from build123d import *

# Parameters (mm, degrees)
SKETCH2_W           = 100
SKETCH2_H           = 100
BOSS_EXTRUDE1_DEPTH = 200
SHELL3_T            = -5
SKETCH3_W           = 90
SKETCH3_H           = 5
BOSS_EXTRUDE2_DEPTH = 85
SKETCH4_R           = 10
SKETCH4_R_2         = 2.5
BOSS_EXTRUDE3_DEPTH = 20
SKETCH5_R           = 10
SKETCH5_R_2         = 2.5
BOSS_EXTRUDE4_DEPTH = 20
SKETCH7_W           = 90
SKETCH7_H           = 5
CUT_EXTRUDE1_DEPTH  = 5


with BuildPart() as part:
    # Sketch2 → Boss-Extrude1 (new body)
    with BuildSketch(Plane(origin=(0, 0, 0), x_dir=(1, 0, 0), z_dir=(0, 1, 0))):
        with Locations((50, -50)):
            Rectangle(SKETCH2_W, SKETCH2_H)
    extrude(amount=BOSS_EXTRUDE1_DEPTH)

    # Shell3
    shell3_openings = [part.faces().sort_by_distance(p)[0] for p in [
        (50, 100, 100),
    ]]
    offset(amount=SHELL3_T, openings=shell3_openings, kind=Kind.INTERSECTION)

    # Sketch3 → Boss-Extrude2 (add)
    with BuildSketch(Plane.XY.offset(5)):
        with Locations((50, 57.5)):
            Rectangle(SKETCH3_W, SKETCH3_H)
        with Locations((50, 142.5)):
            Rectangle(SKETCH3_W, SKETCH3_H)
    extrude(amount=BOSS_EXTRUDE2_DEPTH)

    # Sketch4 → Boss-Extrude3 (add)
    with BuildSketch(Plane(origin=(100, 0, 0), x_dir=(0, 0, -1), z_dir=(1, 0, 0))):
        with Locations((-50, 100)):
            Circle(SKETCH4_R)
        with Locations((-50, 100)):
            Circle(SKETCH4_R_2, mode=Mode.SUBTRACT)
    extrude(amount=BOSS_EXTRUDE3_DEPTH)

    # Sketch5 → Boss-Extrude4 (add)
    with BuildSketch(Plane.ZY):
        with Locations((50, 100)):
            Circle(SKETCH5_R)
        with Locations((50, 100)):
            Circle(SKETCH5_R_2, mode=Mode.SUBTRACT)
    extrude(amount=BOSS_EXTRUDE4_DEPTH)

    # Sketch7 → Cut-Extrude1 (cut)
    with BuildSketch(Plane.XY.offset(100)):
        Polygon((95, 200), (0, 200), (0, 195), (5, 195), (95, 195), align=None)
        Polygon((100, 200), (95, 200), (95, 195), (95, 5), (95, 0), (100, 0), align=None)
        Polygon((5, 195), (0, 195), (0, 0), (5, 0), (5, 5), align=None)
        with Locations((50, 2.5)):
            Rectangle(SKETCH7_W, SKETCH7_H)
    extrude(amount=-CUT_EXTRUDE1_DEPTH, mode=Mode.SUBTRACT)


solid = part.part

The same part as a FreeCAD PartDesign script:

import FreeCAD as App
import Part
import Sketcher

V = App.Vector


def faces_at(feature, points):
    """Names of the faces that lie closest to the given points."""
    faces = feature.Shape.Faces
    near = lambda p: min(range(len(faces)), key=lambda i: faces[i].distToShape(Part.Vertex(*p))[0])
    return sorted({f"Face{near(p) + 1}" for p in points})

doc = App.newDocument("Part")
body = doc.addObject("PartDesign::Body", "Body")

sketch1 = doc.addObject("Sketcher::SketchObject", "Sketch")
body.addObject(sketch1)
sketch1.AttachmentSupport = (doc.XZ_Plane, [""])
sketch1.MapMode = "FlatFace"
sketch1.addGeometry([
    Part.LineSegment(V(0, 0, 0), V(0, 100, 0)),
    Part.LineSegment(V(0, 100, 0), V(100, 100, 0)),
    Part.LineSegment(V(100, 100, 0), V(100, 0, 0)),
    Part.LineSegment(V(100, 0, 0), V(0, 0, 0)),
], False)
sketch1.addConstraint([
    Sketcher.Constraint("Coincident", 0, 2, 1, 1),
    Sketcher.Constraint("Coincident", 1, 2, 2, 1),
    Sketcher.Constraint("Coincident", 2, 2, 3, 1),
    Sketcher.Constraint("Coincident", 3, 2, 0, 1),
    Sketcher.Constraint("Vertical", 0),
    Sketcher.Constraint("Horizontal", 1),
    Sketcher.Constraint("Vertical", 2),
    Sketcher.Constraint("Horizontal", 3),
    Sketcher.Constraint("Coincident", 3, 2, -1, 1),
    Sketcher.Constraint("Equal", 3, 0),
    Sketcher.Constraint("DistanceX", 1, 1, 1, 2, 100.0),
])
pad1 = doc.addObject("PartDesign::Pad", "Pad")
body.addObject(pad1)
pad1.Profile = sketch1
pad1.Length = 200
pad1.Reversed = True
doc.recompute()

thickness = doc.addObject("PartDesign::Thickness", "Thickness")
body.addObject(thickness)
thickness.Base = (pad1, faces_at(pad1, [(50, 100, 100)]))
thickness.Value = 5
thickness.Reversed = True
thickness.Join = "Intersection"

sketch2 = doc.addObject("Sketcher::SketchObject", "Sketch001")
body.addObject(sketch2)
sketch2.AttachmentSupport = (doc.XY_Plane, [""])
sketch2.MapMode = "FlatFace"
sketch2.AttachmentOffset = App.Placement(V(0, 0, 5), App.Rotation())
sketch2.addGeometry([
    Part.LineSegment(V(5, 60, 0), V(5, 55, 0)),
    Part.LineSegment(V(5, 55, 0), V(95, 55, 0)),
    Part.LineSegment(V(95, 55, 0), V(95, 60, 0)),
    Part.LineSegment(V(95, 60, 0), V(5, 60, 0)),
    Part.LineSegment(V(5, 145, 0), V(5, 140, 0)),
    Part.LineSegment(V(5, 140, 0), V(95, 140, 0)),
    Part.LineSegment(V(95, 140, 0), V(95, 145, 0)),
    Part.LineSegment(V(95, 145, 0), V(5, 145, 0)),
], False)
sketch2.addConstraint([
    Sketcher.Constraint("Coincident", 0, 2, 1, 1),
    Sketcher.Constraint("Coincident", 1, 2, 2, 1),
    Sketcher.Constraint("Coincident", 2, 2, 3, 1),
    Sketcher.Constraint("Coincident", 3, 2, 0, 1),
    Sketcher.Constraint("Coincident", 4, 2, 5, 1),
    Sketcher.Constraint("Coincident", 5, 2, 6, 1),
    Sketcher.Constraint("Coincident", 6, 2, 7, 1),
    Sketcher.Constraint("Coincident", 7, 2, 4, 1),
    Sketcher.Constraint("Vertical", 0),
    Sketcher.Constraint("Horizontal", 1),
    Sketcher.Constraint("Vertical", 2),
    Sketcher.Constraint("Horizontal", 3),
    Sketcher.Constraint("Vertical", 4),
    Sketcher.Constraint("Horizontal", 5),
    Sketcher.Constraint("Vertical", 6),
    Sketcher.Constraint("Horizontal", 7),
    Sketcher.Constraint("Vertical", 3, 2, 4, 2),
    Sketcher.Constraint("Vertical", 2, 2, 5, 2),
    Sketcher.Constraint("Equal", 2, 4),
    Sketcher.Constraint("DistanceX", 1, 1, 1, 2, 90.0),
    Sketcher.Constraint("DistanceY", 0, 2, 0, 1, 5.0),
    Sketcher.Constraint("DistanceX", -1, 1, 0, 2, 5.0),
    Sketcher.Constraint("DistanceY", -1, 1, 0, 2, 55.0),
    Sketcher.Constraint("DistanceY", -1, 1, 4, 2, 140.0),
])
pad2 = doc.addObject("PartDesign::Pad", "Pad001")
body.addObject(pad2)
pad2.Profile = sketch2
pad2.Length = 85

sketch3 = doc.addObject("Sketcher::SketchObject", "Sketch002")
body.addObject(sketch3)
sketch3.AttachmentSupport = (doc.YZ_Plane, [""])
sketch3.MapMode = "FlatFace"
sketch3.AttachmentOffset = App.Placement(V(0, 0, 100), App.Rotation())
sketch3.addGeometry([
    Part.Circle(V(100, 50, 0), V(0, 0, 1), 10),
    Part.Circle(V(100, 50, 0), V(0, 0, 1), 2.5),
], False)
sketch3.addConstraint([
    Sketcher.Constraint("Coincident", 1, 3, 0, 3),
    Sketcher.Constraint("Diameter", 0, 20.0),
    Sketcher.Constraint("Diameter", 1, 5.0),
    Sketcher.Constraint("DistanceX", -1, 1, 0, 3, 100.0),
    Sketcher.Constraint("DistanceY", -1, 1, 0, 3, 50.0),
])
pad3 = doc.addObject("PartDesign::Pad", "Pad002")
body.addObject(pad3)
pad3.Profile = sketch3
pad3.Length = 20

sketch4 = doc.addObject("Sketcher::SketchObject", "Sketch003")
body.addObject(sketch4)
sketch4.AttachmentSupport = (doc.YZ_Plane, [""])
sketch4.MapMode = "FlatFace"
sketch4.addGeometry([
    Part.Circle(V(100, 50, 0), V(0, 0, 1), 10),
    Part.Circle(V(100, 50, 0), V(0, 0, 1), 2.5),
], False)
sketch4.addConstraint([
    Sketcher.Constraint("Coincident", 1, 3, 0, 3),
    Sketcher.Constraint("Diameter", 0, 20.0),
    Sketcher.Constraint("Diameter", 1, 5.0),
    Sketcher.Constraint("DistanceX", -1, 1, 0, 3, 100.0),
    Sketcher.Constraint("DistanceY", -1, 1, 0, 3, 50.0),
])
pad4 = doc.addObject("PartDesign::Pad", "Pad003")
body.addObject(pad4)
pad4.Profile = sketch4
pad4.Length = 20
pad4.Reversed = True

sketch5 = doc.addObject("Sketcher::SketchObject", "Sketch004")
body.addObject(sketch5)
sketch5.AttachmentSupport = (doc.XY_Plane, [""])
sketch5.MapMode = "FlatFace"
sketch5.AttachmentOffset = App.Placement(V(0, 0, 100), App.Rotation())
sketch5.addGeometry([
    Part.LineSegment(V(0, 200, 0), V(0, 0, 0)),
    Part.LineSegment(V(0, 0, 0), V(100, 0, 0)),
    Part.LineSegment(V(100, 0, 0), V(100, 200, 0)),
    Part.LineSegment(V(100, 200, 0), V(0, 200, 0)),
    Part.LineSegment(V(5, 5, 0), V(5, 195, 0)),
    Part.LineSegment(V(5, 195, 0), V(95, 195, 0)),
    Part.LineSegment(V(95, 195, 0), V(95, 5, 0)),
    Part.LineSegment(V(95, 5, 0), V(5, 5, 0)),
], False)
sketch5.addConstraint([
    Sketcher.Constraint("Coincident", 0, 2, 1, 1),
    Sketcher.Constraint("Coincident", 1, 2, 2, 1),
    Sketcher.Constraint("Coincident", 2, 2, 3, 1),
    Sketcher.Constraint("Coincident", 3, 2, 0, 1),
    Sketcher.Constraint("Coincident", 4, 2, 5, 1),
    Sketcher.Constraint("Coincident", 5, 2, 6, 1),
    Sketcher.Constraint("Coincident", 6, 2, 7, 1),
    Sketcher.Constraint("Coincident", 7, 2, 4, 1),
    Sketcher.Constraint("Vertical", 0),
    Sketcher.Constraint("Horizontal", 1),
    Sketcher.Constraint("Vertical", 2),
    Sketcher.Constraint("Horizontal", 3),
    Sketcher.Constraint("Vertical", 4),
    Sketcher.Constraint("Horizontal", 5),
    Sketcher.Constraint("Vertical", 6),
    Sketcher.Constraint("Horizontal", 7),
    Sketcher.Constraint("Coincident", 0, 2, -1, 1),
    Sketcher.Constraint("DistanceX", 1, 1, 1, 2, 100.0),
    Sketcher.Constraint("DistanceX", 5, 1, 5, 2, 90.0),
    Sketcher.Constraint("DistanceY", 0, 2, 0, 1, 200.0),
    Sketcher.Constraint("DistanceY", 4, 1, 4, 2, 190.0),
    Sketcher.Constraint("DistanceX", -1, 1, 4, 2, 5.0),
    Sketcher.Constraint("DistanceY", -1, 1, 4, 2, 195.0),
])
pocket1 = doc.addObject("PartDesign::Pocket", "Pocket")
body.addObject(pocket1)
pocket1.Profile = sketch5
pocket1.Length = 5

doc.recompute()
